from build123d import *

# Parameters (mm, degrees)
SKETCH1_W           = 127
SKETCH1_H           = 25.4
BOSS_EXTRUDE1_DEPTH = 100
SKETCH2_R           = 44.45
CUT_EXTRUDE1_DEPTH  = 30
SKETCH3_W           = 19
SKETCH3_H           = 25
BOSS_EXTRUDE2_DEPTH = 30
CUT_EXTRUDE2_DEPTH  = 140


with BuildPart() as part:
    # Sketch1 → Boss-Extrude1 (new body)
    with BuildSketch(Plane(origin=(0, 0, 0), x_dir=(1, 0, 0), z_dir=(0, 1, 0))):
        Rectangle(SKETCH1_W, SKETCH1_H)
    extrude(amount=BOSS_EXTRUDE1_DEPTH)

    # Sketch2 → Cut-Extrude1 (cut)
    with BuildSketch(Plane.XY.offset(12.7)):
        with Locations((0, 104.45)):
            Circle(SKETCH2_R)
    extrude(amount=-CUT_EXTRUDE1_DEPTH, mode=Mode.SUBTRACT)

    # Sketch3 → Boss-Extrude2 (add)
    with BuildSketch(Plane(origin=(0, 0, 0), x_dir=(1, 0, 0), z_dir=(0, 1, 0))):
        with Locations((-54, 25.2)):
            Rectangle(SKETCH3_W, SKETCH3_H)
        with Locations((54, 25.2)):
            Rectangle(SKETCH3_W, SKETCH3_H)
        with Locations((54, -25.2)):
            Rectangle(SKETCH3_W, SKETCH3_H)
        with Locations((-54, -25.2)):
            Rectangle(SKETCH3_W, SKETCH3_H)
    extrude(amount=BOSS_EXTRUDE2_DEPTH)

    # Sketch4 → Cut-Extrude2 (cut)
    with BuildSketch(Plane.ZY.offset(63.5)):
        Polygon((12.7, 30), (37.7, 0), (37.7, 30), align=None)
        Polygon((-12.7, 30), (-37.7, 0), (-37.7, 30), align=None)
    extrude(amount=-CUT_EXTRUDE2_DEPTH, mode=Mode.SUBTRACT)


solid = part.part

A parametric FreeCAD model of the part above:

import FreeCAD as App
import Part
import Sketcher
Q = App.Units.Quantity


def add_polygon(sketch, points):
    """Adds a closed chain of lines whose ends are joined by coincident constraints."""
    first, n = sketch.GeometryCount, len(points)
    for a, b in zip(points, points[1:] + points[:1]):
        sketch.addGeometry(Part.LineSegment(App.Vector(*a, 0), App.Vector(*b, 0)), False)
    for i in range(n):
        sketch.addConstraint(Sketcher.Constraint("Coincident", first + i, 2, first + (i + 1) % n, 1))

doc = App.newDocument("Part")
body = doc.addObject("PartDesign::Body", "Body")

# Sketch on XZ plane
sketch1 = body.newObject("Sketcher::SketchObject", "Sketch")
sketch1.AttachmentSupport = (doc.getObject("XZ_Plane"), [""])
sketch1.MapMode = "FlatFace"
add_polygon(sketch1, [(-64, -13), (-64, 13), (64, 13), (64, -13)])  # lines 0-3
sketch1.addConstraint([
    Sketcher.Constraint("Vertical", 0),
    Sketcher.Constraint("Horizontal", 1),
    Sketcher.Constraint("Vertical", 2),
    Sketcher.Constraint("Horizontal", 3),
    Sketcher.Constraint("Symmetric", 0, 2, 2, 2, -1, 1),
    Sketcher.Constraint("DistanceX", 1, 1, 1, 2, Q("127 mm")),
    Sketcher.Constraint("DistanceY", 0, 1, 0, 2, Q("25.4 mm")),
])
pad1 = body.newObject("PartDesign::Pad", "Pad")
pad1.Profile = sketch1
pad1.Length = 100
pad1.Reversed = True

# Sketch on XY plane
sketch2 = body.newObject("Sketcher::SketchObject", "Sketch001")
sketch2.AttachmentSupport = (doc.getObject("XY_Plane"), [""])
sketch2.MapMode = "FlatFace"
sketch2.AttachmentOffset = App.Placement(App.Vector(0, 0, 12.7), App.Rotation())
sketch2.addGeometry(Part.Circle(App.Vector(0, 104, 0), App.Vector(0, 0, 1), 44), False)
sketch2.addConstraint([
    Sketcher.Constraint("PointOnObject", 0, 3, -2),
    Sketcher.Constraint("Diameter", 0, Q("88.9 mm")),
    Sketcher.Constraint("DistanceY", -1, 1, 0, 3, Q("104.45 mm")),
])
pocket1 = body.newObject("PartDesign::Pocket", "Pocket")
pocket1.Profile = sketch2
pocket1.Length = 30

# Sketch on XZ plane
sketch3 = body.newObject("Sketcher::SketchObject", "Sketch002")
sketch3.AttachmentSupport = (doc.getObject("XZ_Plane"), [""])
sketch3.MapMode = "FlatFace"
add_polygon(sketch3, [(-64, -38), (-64, -13), (-44, -13), (-44, -38)])  # lines 0-3
add_polygon(sketch3, [(44, -38), (44, -13), (64, -13), (64, -38)])  # lines 4-7
add_polygon(sketch3, [(44, 13), (44, 38), (64, 38), (64, 13)])  # lines 8-11
add_polygon(sketch3, [(-64, 13), (-64, 38), (-44, 38), (-44, 13)])  # lines 12-15
sketch3.addConstraint([
    Sketcher.Constraint("Vertical", 0),
    Sketcher.Constraint("Horizontal", 1),
    Sketcher.Constraint("Vertical", 2),
    Sketcher.Constraint("Horizontal", 3),
    Sketcher.Constraint("Vertical", 4),
    Sketcher.Constraint("Horizontal", 5),
    Sketcher.Constraint("Vertical", 6),
    Sketcher.Constraint("Horizontal", 7),
    Sketcher.Constraint("Vertical", 8),
    Sketcher.Constraint("Horizontal", 9),
    Sketcher.Constraint("Vertical", 10),
    Sketcher.Constraint("Horizontal", 11),
    Sketcher.Constraint("Vertical", 12),
    Sketcher.Constraint("Horizontal", 13),
    Sketcher.Constraint("Vertical", 14),
    Sketcher.Constraint("Horizontal", 15),
    Sketcher.Constraint("Symmetric", 2, 2, 8, 2, -1, 1),
    Sketcher.Constraint("Symmetric", 0, 2, 10, 2, -1, 1),
    Sketcher.Constraint("Symmetric", 6, 2, 12, 2, -1, 1),
    Sketcher.Constraint("Symmetric", 4, 2, 14, 2, -1, 1),
    Sketcher.Constraint("Symmetric", 1, 2, 4, 2, -2),
    Sketcher.Constraint("Symmetric", 3, 2, 6, 2, -2),
    Sketcher.Constraint("DistanceX", 1, 1, 1, 2, Q("19 mm")),
    Sketcher.Constraint("DistanceY", 0, 1, 0, 2, Q("25 mm")),
    Sketcher.Constraint("DistanceX", 1, 2, 4, 2, Q("89 mm")),
    Sketcher.Constraint("DistanceY", 0, 2, -1, 1, Q("12.7 mm")),
])
pad2 = body.newObject("PartDesign::Pad", "Pad001")
pad2.Profile = sketch3
pad2.Length = 30
pad2.Reversed = True

# Sketch on YZ plane
sketch4 = body.newObject("Sketcher::SketchObject", "Sketch003")
sketch4.AttachmentSupport = (doc.getObject("YZ_Plane"), [""])
sketch4.MapMode = "FlatFace"
sketch4.AttachmentOffset = App.Placement(App.Vector(0, 0, -63.5), App.Rotation())
add_polygon(sketch4, [(30, 13), (0, 38), (30, 38)])  # lines 0-2
add_polygon(sketch4, [(0, -38), (30, -13), (30, -38)])  # lines 3-5
sketch4.addConstraint([
    Sketcher.Constraint("Horizontal", 1),
    Sketcher.Constraint("Vertical", 2),
    Sketcher.Constraint("Vertical", 4),
    Sketcher.Constraint("Horizontal", 5),
    Sketcher.Constraint("Symmetric", 0, 2, 5, 2, -1, 1),
    Sketcher.Constraint("Symmetric", 2, 2, 3, 2, -1),
    Sketcher.Constraint("PointOnObject", 0, 2, -2),
    Sketcher.Constraint("DistanceX", 1, 1, 1, 2, Q("30 mm")),
    Sketcher.Constraint("DistanceY", 2, 2, 2, 1, Q("25 mm")),
    Sketcher.Constraint("DistanceY", -1, 1, 0, 2, Q("37.7 mm")),
])
pocket2 = body.newObject("PartDesign::Pocket", "Pocket001")
pocket2.Profile = sketch4
pocket2.Length = 140
pocket2.Reversed = True

doc.recompute()
